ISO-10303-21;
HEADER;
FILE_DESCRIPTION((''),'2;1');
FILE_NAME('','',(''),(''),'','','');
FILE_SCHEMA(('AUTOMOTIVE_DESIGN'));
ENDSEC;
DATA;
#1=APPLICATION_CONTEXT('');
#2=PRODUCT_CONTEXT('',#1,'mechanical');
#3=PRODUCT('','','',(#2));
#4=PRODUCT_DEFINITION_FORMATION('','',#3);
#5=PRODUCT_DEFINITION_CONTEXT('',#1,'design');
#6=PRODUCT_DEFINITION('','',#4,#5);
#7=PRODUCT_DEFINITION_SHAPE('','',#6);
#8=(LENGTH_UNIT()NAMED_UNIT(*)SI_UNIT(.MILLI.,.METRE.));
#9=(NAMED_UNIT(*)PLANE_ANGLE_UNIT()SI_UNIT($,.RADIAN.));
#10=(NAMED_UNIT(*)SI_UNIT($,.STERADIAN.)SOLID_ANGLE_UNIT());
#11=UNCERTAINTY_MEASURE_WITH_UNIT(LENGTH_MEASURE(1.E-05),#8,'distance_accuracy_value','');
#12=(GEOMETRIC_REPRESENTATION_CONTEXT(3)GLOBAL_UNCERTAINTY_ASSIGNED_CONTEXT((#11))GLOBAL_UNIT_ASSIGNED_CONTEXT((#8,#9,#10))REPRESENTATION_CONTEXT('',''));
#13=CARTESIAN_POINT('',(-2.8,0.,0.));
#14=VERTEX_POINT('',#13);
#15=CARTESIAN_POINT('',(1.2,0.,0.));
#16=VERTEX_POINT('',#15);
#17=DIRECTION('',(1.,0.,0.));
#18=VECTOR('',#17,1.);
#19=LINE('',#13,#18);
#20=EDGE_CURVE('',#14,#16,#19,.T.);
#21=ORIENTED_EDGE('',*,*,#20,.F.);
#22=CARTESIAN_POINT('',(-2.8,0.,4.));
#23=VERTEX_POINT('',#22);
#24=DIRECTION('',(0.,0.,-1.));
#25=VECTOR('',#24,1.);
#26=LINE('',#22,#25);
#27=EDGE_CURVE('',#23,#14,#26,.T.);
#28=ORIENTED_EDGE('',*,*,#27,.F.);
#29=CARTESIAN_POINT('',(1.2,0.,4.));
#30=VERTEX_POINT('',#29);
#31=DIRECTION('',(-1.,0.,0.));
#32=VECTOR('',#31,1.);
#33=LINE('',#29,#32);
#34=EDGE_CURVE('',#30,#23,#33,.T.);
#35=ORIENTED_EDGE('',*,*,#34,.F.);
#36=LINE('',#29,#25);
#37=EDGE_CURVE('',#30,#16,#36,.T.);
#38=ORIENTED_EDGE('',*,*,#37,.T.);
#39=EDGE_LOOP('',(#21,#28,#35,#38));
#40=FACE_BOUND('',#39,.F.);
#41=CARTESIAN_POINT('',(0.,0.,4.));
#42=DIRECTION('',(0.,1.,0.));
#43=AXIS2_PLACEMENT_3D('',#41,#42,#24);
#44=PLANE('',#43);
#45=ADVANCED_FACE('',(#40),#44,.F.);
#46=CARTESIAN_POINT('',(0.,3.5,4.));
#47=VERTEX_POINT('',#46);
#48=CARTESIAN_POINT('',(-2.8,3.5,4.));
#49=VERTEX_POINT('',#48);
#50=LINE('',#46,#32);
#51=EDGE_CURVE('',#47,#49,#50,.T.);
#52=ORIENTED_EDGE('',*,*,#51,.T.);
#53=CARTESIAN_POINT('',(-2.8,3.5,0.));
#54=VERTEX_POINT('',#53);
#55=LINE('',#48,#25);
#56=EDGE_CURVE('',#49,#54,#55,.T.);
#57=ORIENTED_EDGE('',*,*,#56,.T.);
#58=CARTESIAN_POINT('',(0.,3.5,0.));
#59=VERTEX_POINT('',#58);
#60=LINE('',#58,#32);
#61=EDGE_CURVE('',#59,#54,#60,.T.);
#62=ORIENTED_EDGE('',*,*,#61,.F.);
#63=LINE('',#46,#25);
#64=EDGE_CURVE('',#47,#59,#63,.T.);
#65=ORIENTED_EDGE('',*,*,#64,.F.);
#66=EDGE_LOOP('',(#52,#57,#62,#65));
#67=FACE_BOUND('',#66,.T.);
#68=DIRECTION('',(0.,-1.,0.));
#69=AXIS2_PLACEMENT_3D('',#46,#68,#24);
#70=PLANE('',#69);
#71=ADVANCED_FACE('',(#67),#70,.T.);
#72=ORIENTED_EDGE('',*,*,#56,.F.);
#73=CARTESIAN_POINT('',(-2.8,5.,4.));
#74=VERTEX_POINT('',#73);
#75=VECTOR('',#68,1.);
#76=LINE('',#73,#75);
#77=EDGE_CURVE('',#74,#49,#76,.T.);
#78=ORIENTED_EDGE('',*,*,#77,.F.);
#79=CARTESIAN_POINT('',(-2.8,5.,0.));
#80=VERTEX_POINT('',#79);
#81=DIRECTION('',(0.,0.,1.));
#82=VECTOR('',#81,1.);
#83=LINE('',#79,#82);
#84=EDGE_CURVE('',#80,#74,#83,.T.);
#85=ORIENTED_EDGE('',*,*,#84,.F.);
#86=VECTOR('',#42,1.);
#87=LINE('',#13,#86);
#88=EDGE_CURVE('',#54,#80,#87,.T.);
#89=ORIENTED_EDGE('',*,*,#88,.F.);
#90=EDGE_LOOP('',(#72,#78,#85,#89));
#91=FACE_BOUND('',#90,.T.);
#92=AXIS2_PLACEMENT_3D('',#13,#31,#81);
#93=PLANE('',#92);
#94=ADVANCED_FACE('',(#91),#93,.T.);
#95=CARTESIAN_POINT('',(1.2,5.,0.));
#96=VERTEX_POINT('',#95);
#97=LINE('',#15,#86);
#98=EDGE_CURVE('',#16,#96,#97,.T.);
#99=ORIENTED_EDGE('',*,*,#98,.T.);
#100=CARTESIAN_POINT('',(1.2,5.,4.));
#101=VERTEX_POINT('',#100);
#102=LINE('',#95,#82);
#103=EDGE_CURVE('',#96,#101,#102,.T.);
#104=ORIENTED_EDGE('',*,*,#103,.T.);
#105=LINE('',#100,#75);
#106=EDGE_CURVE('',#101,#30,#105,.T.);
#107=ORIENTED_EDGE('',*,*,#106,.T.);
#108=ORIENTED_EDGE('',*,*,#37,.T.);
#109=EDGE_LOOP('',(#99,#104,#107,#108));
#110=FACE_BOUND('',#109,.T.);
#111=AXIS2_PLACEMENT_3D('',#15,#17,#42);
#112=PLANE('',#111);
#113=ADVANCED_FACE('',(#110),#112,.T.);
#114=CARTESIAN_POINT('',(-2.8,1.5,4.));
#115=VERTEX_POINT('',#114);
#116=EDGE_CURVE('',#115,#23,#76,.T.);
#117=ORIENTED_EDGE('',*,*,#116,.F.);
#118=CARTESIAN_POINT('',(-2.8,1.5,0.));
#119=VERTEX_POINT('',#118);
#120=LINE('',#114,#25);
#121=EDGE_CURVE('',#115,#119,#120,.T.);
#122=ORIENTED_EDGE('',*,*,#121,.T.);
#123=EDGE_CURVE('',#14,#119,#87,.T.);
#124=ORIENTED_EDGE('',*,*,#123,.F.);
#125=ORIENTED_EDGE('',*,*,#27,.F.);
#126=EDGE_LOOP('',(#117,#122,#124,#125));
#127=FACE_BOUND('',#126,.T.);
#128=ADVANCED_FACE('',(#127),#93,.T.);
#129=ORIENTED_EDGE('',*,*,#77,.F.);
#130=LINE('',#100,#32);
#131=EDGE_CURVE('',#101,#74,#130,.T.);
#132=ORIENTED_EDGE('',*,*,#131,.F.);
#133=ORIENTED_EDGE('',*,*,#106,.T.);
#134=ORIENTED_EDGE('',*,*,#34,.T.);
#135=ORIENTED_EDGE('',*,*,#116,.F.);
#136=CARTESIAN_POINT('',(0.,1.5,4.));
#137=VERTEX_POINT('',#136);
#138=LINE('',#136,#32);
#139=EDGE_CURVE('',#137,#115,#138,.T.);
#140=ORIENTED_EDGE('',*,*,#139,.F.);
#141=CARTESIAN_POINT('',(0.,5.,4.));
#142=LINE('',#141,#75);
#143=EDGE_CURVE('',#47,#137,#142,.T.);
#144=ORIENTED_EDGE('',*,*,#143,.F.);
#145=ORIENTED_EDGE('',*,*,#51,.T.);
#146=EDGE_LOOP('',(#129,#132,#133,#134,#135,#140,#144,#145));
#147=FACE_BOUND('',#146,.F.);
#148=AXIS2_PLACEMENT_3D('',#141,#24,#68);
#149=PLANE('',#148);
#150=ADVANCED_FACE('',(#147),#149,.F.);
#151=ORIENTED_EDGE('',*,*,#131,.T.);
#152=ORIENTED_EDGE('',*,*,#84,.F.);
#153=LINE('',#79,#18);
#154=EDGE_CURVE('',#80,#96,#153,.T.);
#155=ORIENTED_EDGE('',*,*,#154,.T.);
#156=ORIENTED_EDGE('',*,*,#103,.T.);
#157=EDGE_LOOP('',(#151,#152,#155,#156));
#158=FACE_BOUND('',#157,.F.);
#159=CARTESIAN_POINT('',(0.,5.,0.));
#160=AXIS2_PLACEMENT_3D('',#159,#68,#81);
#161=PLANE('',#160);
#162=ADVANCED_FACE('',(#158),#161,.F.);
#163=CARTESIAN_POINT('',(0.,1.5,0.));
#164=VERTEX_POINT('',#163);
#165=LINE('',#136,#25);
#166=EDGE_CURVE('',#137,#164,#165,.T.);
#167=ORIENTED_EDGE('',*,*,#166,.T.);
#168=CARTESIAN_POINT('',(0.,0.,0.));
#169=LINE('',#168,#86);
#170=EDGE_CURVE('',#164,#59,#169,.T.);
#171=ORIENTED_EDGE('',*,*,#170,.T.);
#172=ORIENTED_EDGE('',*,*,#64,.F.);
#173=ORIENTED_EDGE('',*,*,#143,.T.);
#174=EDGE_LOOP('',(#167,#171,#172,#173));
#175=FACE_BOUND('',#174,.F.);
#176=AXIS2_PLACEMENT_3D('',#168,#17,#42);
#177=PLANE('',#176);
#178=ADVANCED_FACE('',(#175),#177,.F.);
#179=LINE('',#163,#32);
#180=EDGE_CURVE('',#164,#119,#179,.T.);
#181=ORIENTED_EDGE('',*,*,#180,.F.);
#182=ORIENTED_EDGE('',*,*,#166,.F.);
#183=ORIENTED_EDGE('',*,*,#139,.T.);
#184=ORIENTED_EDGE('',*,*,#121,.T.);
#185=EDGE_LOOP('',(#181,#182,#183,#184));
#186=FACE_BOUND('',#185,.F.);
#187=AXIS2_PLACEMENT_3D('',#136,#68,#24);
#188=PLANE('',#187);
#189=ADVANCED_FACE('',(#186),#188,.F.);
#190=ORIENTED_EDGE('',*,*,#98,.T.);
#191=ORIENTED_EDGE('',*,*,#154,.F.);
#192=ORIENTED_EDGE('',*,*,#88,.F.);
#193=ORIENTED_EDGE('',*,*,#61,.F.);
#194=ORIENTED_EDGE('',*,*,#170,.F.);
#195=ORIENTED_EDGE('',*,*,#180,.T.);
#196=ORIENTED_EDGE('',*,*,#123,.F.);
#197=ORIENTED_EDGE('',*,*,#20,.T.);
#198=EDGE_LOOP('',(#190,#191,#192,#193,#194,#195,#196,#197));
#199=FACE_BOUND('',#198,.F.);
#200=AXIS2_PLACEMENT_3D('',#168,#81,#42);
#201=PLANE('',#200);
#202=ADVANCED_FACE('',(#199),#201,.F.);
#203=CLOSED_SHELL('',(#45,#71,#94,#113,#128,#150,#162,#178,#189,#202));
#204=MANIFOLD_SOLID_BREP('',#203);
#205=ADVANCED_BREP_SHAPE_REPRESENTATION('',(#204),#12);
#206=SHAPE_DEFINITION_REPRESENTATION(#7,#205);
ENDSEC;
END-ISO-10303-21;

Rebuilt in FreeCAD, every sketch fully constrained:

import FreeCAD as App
import Part
import Sketcher

V = App.Vector


def add_polygon(sketch, points):
    """Adds a closed chain of lines whose ends are joined by coincident constraints."""
    first, n = sketch.GeometryCount, len(points)
    for a, b in zip(points, points[1:] + points[:1]):
        sketch.addGeometry(Part.LineSegment(App.Vector(*a, 0), App.Vector(*b, 0)), False)
    for i in range(n):
        sketch.addConstraint(Sketcher.Constraint("Coincident", first + i, 2, first + (i + 1) % n, 1))

doc = App.newDocument("Part")
body = doc.addObject("PartDesign::Body", "Body")

# Sketch on YZ plane
sketch1 = body.newObject("Sketcher::SketchObject", "Sketch")
sketch1.AttachmentSupport = (doc.getObject("YZ_Plane"), [""])
sketch1.MapMode = "FlatFace"
add_polygon(sketch1, [(0, 4), (0, 0), (5, 0), (5, 4)])  # lines 0-3
sketch1.addConstraint(Sketcher.Constraint("Vertical", 0))
sketch1.addConstraint(Sketcher.Constraint("Horizontal", 1))
sketch1.addConstraint(Sketcher.Constraint("Vertical", 2))
sketch1.addConstraint(Sketcher.Constraint("Horizontal", 3))
sketch1.addConstraint(Sketcher.Constraint("Coincident", 0, 2, -1, 1))
sketch1.addConstraint(Sketcher.Constraint("DistanceX", 1, 1, 1, 2, 5.0))
sketch1.addConstraint(Sketcher.Constraint("DistanceY", 0, 2, 0, 1, 4.0))
pad1 = body.newObject("PartDesign::Pad", "Pad")
pad1.Profile = sketch1
pad1.Length = 1.2

# Sketch on YZ plane
sketch2 = body.newObject("Sketcher::SketchObject", "Sketch001")
sketch2.AttachmentSupport = (doc.getObject("YZ_Plane"), [""])
sketch2.MapMode = "FlatFace"
add_polygon(sketch2, [(1.5, 0), (0, 0), (0, 4), (1.5, 4)])  # lines 0-3
add_polygon(sketch2, [(5, 0), (3.5, 0), (3.5, 4), (5, 4)])  # lines 4-7
sketch2.addConstraint(Sketcher.Constraint("Horizontal", 0))
sketch2.addConstraint(Sketcher.Constraint("Vertical", 1))
sketch2.addConstraint(Sketcher.Constraint("Horizontal", 2))
sketch2.addConstraint(Sketcher.Constraint("Vertical", 3))
sketch2.addConstraint(Sketcher.Constraint("Horizontal", 4))
sketch2.addConstraint(Sketcher.Constraint("Vertical", 5))
sketch2.addConstraint(Sketcher.Constraint("Horizontal", 6))
sketch2.addConstraint(Sketcher.Constraint("Vertical", 7))
sketch2.addConstraint(Sketcher.Constraint("Coincident", 0, 2, -1, 1))
sketch2.addConstraint(Sketcher.Constraint("PointOnObject", 4, 2, -1))
sketch2.addConstraint(Sketcher.Constraint("Horizontal", 2, 2, 5, 2))
sketch2.addConstraint(Sketcher.Constraint("Equal", 2, 4))
sketch2.addConstraint(Sketcher.Constraint("DistanceX", 0, 2, 0, 1, 1.5))
sketch2.addConstraint(Sketcher.Constraint("DistanceY", 1, 1, 1, 2, 4.0))
sketch2.addConstraint(Sketcher.Constraint("DistanceX", -1, 1, 6, 2, 5.0))
pad2 = body.newObject("PartDesign::Pad", "Pad001")
pad2.Profile = sketch2
pad2.Length = 2.8
pad2.Reversed = True

doc.recompute()
